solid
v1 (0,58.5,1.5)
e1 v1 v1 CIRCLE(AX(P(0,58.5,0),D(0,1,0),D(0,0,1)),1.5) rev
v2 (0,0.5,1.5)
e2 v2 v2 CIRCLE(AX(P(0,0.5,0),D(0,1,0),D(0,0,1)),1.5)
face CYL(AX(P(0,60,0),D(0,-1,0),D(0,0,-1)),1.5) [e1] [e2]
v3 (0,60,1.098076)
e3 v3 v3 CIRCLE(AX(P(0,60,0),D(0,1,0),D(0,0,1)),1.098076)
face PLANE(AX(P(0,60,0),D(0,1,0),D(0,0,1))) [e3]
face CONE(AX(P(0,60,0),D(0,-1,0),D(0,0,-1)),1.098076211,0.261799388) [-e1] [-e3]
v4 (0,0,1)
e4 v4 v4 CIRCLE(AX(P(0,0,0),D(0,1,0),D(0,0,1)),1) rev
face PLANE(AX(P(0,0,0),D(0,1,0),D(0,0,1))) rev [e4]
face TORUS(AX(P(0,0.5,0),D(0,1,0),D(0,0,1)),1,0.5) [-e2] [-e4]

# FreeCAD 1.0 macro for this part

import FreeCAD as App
import Part
import Sketcher
Q = App.Units.Quantity


def edges_at(feature, points):
    """Names of the edges that pass closest to the given points."""
    edges = feature.Shape.Edges
    near = lambda p: min(range(len(edges)), key=lambda i: edges[i].distToShape(Part.Vertex(*p))[0])
    return sorted({f"Edge{near(p) + 1}" for p in points})

doc = App.newDocument("Part")
body = doc.addObject("PartDesign::Body", "Body")

sketch1 = body.newObject("Sketcher::SketchObject", "Sketch")
sketch1.AttachmentSupport = (doc.getObject("XZ_Plane"), [""])
sketch1.MapMode = "FlatFace"
sketch1.addGeometry(Part.Circle(App.Vector(0, 0, 0), App.Vector(0, 0, 1), 1.5), False)
sketch1.addConstraint(Sketcher.Constraint("Coincident", 0, 3, -1, 1))
sketch1.addConstraint(Sketcher.Constraint("Diameter", 0, Q("3 mm")))
pad1 = body.newObject("PartDesign::Pad", "Pad")
pad1.Profile = sketch1
pad1.Length = 60
pad1.Reversed = True
doc.recompute()

chamfer = body.newObject("PartDesign::Chamfer", "Chamfer")
chamfer.Base = (pad1, edges_at(pad1, [(0, 60, -1.5)]))
chamfer.ChamferType = "Two distances"
chamfer.Size = 1.5
chamfer.Size2 = 0.401924
doc.recompute()

fillet = body.newObject("PartDesign::Fillet", "Fillet")
fillet.Base = (chamfer, edges_at(chamfer, [(0, 0, -1.5)]))
fillet.Radius = 0.5

doc.recompute()
